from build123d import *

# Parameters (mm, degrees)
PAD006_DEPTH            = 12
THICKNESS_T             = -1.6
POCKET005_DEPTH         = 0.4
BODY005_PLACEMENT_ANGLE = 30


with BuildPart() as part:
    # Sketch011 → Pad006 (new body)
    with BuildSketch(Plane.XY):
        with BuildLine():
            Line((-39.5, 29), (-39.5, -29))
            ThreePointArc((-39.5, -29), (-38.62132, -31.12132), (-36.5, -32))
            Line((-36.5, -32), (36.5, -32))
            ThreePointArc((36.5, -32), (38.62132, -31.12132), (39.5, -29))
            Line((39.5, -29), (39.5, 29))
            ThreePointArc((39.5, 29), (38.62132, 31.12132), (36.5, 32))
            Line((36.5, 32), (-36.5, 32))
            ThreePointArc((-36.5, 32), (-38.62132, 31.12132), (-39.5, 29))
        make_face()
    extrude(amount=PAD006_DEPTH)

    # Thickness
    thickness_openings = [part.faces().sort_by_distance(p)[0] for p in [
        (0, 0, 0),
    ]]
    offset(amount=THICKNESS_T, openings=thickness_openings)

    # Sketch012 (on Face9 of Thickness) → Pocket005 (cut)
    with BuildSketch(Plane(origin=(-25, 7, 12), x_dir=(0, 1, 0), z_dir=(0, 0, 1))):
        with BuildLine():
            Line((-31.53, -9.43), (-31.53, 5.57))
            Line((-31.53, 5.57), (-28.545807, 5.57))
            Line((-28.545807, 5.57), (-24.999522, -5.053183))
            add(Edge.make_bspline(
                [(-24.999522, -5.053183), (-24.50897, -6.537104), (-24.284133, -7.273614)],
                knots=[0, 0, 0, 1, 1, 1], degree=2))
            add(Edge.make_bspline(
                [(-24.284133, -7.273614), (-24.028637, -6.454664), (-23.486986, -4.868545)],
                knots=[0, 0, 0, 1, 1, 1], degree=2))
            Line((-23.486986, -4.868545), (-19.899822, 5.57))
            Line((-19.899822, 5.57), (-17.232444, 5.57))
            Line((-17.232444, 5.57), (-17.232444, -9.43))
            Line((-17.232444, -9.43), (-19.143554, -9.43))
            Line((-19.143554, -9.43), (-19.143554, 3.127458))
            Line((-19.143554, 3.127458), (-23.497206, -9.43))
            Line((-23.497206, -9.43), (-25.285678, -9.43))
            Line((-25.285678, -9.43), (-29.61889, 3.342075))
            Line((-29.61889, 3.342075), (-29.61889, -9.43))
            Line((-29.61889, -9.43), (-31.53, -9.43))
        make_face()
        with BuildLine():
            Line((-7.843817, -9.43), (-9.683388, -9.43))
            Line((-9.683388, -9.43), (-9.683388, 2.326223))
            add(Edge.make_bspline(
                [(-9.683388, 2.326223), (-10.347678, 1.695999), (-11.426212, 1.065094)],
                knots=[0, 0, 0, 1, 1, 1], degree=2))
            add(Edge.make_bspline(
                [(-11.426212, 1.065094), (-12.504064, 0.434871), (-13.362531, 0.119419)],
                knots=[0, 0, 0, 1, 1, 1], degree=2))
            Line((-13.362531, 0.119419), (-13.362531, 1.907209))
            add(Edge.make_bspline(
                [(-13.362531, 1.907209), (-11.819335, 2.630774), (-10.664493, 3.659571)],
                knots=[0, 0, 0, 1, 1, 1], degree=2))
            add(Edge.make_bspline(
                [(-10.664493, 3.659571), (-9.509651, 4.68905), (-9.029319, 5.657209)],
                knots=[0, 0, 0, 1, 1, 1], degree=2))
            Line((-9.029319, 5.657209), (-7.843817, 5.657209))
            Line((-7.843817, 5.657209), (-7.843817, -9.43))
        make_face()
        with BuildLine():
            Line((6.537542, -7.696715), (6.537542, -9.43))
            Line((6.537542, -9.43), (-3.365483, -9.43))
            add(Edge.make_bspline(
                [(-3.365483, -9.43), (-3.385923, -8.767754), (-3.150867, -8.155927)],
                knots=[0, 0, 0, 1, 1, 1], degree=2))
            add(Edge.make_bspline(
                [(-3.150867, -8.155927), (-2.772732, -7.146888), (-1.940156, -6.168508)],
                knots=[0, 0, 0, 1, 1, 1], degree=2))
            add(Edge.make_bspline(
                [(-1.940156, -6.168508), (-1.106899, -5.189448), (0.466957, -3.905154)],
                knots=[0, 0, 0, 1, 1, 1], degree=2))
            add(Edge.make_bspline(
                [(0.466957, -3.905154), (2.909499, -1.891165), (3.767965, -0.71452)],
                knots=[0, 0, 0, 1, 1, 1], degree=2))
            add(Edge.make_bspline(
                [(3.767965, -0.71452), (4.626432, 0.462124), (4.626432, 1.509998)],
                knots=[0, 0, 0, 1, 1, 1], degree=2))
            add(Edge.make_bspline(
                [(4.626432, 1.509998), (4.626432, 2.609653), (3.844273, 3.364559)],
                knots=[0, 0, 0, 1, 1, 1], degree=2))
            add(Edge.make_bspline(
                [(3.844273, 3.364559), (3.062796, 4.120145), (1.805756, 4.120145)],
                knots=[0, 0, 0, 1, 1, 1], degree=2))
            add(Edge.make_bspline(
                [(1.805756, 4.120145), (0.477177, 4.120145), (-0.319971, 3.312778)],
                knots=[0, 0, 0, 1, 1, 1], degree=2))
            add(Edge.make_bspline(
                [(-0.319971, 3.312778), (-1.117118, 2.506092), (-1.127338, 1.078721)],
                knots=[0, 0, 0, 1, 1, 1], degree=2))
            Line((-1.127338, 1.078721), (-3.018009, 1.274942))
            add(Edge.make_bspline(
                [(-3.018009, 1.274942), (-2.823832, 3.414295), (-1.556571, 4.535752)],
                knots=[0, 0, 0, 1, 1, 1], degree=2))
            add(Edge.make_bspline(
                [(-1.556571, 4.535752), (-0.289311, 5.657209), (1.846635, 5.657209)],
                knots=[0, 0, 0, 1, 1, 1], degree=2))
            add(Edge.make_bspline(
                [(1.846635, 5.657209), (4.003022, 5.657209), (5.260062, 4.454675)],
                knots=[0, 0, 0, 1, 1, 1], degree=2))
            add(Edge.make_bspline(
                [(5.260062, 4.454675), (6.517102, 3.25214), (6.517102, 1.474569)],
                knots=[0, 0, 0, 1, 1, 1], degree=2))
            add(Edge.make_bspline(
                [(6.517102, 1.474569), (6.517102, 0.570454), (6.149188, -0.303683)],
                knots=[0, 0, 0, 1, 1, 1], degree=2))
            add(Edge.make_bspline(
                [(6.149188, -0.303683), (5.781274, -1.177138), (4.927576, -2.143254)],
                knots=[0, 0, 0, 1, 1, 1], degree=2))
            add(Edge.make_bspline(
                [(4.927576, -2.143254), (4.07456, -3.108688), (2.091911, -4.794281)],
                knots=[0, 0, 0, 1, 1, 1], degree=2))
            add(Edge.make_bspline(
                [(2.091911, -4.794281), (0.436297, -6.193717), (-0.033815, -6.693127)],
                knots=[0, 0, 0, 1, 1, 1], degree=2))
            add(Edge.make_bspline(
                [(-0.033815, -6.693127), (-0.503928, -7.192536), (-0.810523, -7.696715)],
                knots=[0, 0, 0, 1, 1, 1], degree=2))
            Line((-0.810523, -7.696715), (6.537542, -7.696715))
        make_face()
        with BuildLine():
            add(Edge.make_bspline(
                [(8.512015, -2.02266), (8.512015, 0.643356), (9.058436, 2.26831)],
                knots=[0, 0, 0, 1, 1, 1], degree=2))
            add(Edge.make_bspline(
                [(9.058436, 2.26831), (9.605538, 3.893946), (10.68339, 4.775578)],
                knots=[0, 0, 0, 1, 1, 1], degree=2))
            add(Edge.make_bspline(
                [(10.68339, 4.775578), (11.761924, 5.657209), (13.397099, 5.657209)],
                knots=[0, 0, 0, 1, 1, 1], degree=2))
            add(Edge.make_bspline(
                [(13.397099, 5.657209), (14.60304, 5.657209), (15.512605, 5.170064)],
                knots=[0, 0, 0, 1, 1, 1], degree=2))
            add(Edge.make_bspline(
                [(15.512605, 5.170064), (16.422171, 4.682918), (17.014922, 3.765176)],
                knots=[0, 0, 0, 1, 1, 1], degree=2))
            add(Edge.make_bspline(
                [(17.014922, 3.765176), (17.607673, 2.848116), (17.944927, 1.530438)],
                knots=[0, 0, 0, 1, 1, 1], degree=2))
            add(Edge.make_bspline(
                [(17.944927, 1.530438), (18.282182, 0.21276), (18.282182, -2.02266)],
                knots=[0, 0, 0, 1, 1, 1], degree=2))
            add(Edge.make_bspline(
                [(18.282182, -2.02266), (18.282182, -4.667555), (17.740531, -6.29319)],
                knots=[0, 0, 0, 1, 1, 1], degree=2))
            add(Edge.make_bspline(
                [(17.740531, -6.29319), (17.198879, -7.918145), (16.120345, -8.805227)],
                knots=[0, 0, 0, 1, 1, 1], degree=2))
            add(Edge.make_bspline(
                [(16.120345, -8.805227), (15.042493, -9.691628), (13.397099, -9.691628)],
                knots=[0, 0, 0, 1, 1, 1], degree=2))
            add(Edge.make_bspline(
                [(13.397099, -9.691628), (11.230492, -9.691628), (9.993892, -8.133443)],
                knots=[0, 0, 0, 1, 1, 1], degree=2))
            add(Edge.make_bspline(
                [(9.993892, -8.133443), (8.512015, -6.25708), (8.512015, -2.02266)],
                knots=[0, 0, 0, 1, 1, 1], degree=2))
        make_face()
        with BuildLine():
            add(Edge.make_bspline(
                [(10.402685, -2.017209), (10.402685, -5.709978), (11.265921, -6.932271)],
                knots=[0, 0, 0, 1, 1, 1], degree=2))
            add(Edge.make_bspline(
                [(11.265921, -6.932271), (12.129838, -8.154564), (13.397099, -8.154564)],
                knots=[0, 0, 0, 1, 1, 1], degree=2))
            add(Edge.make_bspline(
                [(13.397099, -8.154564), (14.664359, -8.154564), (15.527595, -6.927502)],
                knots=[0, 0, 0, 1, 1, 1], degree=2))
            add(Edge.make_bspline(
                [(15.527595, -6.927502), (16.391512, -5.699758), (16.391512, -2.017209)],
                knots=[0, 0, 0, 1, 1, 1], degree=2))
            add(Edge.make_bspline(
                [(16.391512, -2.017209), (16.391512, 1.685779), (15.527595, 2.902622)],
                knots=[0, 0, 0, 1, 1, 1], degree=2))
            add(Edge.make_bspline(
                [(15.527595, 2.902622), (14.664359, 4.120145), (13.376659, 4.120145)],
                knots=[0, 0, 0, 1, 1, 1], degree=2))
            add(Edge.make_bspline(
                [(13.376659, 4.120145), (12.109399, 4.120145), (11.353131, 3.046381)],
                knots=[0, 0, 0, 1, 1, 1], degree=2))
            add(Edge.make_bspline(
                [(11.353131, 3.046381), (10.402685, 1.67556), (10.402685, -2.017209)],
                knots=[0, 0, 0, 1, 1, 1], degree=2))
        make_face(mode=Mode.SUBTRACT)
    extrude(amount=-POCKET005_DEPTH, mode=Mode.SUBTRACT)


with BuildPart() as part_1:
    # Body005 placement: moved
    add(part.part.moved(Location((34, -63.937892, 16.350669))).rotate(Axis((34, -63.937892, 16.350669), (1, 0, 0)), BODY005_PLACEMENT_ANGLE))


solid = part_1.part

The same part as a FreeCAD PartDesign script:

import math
import FreeCAD as App
import Part
import Sketcher

V = App.Vector
Q = App.Units.Quantity


def faces_at(feature, points):
    """Names of the faces that lie closest to the given points."""
    faces = feature.Shape.Faces
    near = lambda p: min(range(len(faces)), key=lambda i: faces[i].distToShape(Part.Vertex(*p))[0])
    return sorted({f"Face{near(p) + 1}" for p in points})

doc = App.newDocument("Part")
body = doc.addObject("PartDesign::Body", "Body")

sketch1 = body.newObject("Sketcher::SketchObject", "Sketch")
sketch1.AttachmentSupport = (doc.getObject("XY_Plane"), [""])
sketch1.MapMode = "FlatFace"
sketch1.addGeometry([
    Part.LineSegment(V(-39.5, 29, 0), V(-39.5, -29, 0)),
    Part.ArcOfCircle(Part.Circle(V(-36.5, -29, 0), V(0, 0, 1), 3), math.radians(-180), math.radians(-90)),
    Part.LineSegment(V(-36.5, -32, 0), V(36.5, -32, 0)),
    Part.ArcOfCircle(Part.Circle(V(36.5, -29, 0), V(0, 0, 1), 3), math.radians(-90), math.radians(0)),
    Part.LineSegment(V(39.5, -29, 0), V(39.5, 29, 0)),
    Part.ArcOfCircle(Part.Circle(V(36.5, 29, 0), V(0, 0, 1), 3), math.radians(0), math.radians(90)),
    Part.LineSegment(V(36.5, 32, 0), V(-36.5, 32, 0)),
    Part.ArcOfCircle(Part.Circle(V(-36.5, 29, 0), V(0, 0, 1), 3), math.radians(90), math.radians(180)),
], False)
sketch1.addConstraint([
    Sketcher.Constraint("Tangent", 0, 2, 1, 1),
    Sketcher.Constraint("Tangent", 1, 2, 2, 1),
    Sketcher.Constraint("Tangent", 2, 2, 3, 1),
    Sketcher.Constraint("Tangent", 3, 2, 4, 1),
    Sketcher.Constraint("Tangent", 4, 2, 5, 1),
    Sketcher.Constraint("Tangent", 5, 2, 6, 1),
    Sketcher.Constraint("Tangent", 6, 2, 7, 1),
    Sketcher.Constraint("Tangent", 7, 2, 0, 1),
    Sketcher.Constraint("Vertical", 0),
    Sketcher.Constraint("Horizontal", 2),
    Sketcher.Constraint("Vertical", 4),
    Sketcher.Constraint("Horizontal", 6),
    Sketcher.Constraint("Equal", 1, 3),
    Sketcher.Constraint("Equal", 3, 5),
    Sketcher.Constraint("Equal", 5, 7),
    Sketcher.Constraint("Symmetric", 1, 3, 5, 3, -1, 1),
    Sketcher.Constraint("Radius", 1, Q("3.000001 mm")),
    Sketcher.Constraint("DistanceX", 2, 1, 2, 2, Q("73 mm")),
    Sketcher.Constraint("DistanceY", 0, 2, 0, 1, Q("58 mm")),
])
pad1 = body.newObject("PartDesign::Pad", "Pad")
pad1.Profile = sketch1
pad1.Length = 12
doc.recompute()

thickness = body.newObject("PartDesign::Thickness", "Thickness")
thickness.Base = (pad1, faces_at(pad1, [(0, 0, 0)]))
thickness.Value = 1.6
thickness.Reversed = True
thickness.Join = "Arc"

sketch2 = body.newObject("Sketcher::SketchObject", "Sketch001")
sketch2.AttachmentSupport = (doc.getObject("XY_Plane"), [""])
sketch2.MapMode = "FlatFace"
sketch2.AttachmentOffset = App.Placement(V(0, 0, 12), App.Rotation())
sketch2.addGeometry([
    Part.LineSegment(V(-30.57, -24.53, 0), V(-15.57, -24.53, 0)),
    Part.LineSegment(V(-15.57, -24.53, 0), V(-15.57, -22.61889, 0)),
    Part.LineSegment(V(-15.57, -22.61889, 0), V(-28.342075, -22.61889, 0)),
    Part.LineSegment(V(-28.342075, -22.61889, 0), V(-15.57, -18.285678, 0)),
    Part.LineSegment(V(-15.57, -18.285678, 0), V(-15.57, -16.497206, 0)),
    Part.LineSegment(V(-15.57, -16.497206, 0), V(-28.127458, -12.143554, 0)),
    Part.LineSegment(V(-28.127458, -12.143554, 0), V(-15.57, -12.143554, 0)),
    Part.LineSegment(V(-15.57, -12.143554, 0), V(-15.57, -10.232444, 0)),
    Part.LineSegment(V(-15.57, -10.232444, 0), V(-30.57, -10.232444, 0)),
    Part.LineSegment(V(-30.57, -10.232444, 0), V(-30.57, -12.899822, 0)),
    Part.LineSegment(V(-30.57, -12.899822, 0), V(-20.131455, -16.486986, 0)),
    Part.BSplineCurve([V(-17.726386, -17.284133, 0), V(-18.545336, -17.028637, 0), V(-20.131455, -16.486986, 0)], [3, 3], [0, 1], False, 2, [1, 1, 1], False),
    Part.BSplineCurve([V(-19.946817, -17.999522, 0), V(-18.462896, -17.50897, 0), V(-17.726386, -17.284133, 0)], [3, 3], [0, 1], False, 2, [1, 1, 1], False),
    Part.LineSegment(V(-19.946817, -17.999522, 0), V(-30.57, -21.545807, 0)),
    Part.LineSegment(V(-30.57, -21.545807, 0), V(-30.57, -24.53, 0)),
    Part.LineSegment(V(-15.57, -2.683388, 0), V(-15.57, -0.843817, 0)),
    Part.LineSegment(V(-15.57, -0.843817, 0), V(-30.657209, -0.843817, 0)),
    Part.LineSegment(V(-30.657209, -0.843817, 0), V(-30.657209, -2.029319, 0)),
    Part.BSplineCurve([V(-28.659571, -3.664493, 0), V(-29.68905, -2.509651, 0), V(-30.657209, -2.029319, 0)], [3, 3], [0, 1], False, 2, [1, 1, 1], False),
    Part.BSplineCurve([V(-26.907209, -6.362531, 0), V(-27.630774, -4.819335, 0), V(-28.659571, -3.664493, 0)], [3, 3], [0, 1], False, 2, [1, 1, 1], False),
    Part.LineSegment(V(-26.907209, -6.362531, 0), V(-25.119419, -6.362531, 0)),
    Part.BSplineCurve([V(-26.065094, -4.426212, 0), V(-25.434871, -5.504064, 0), V(-25.119419, -6.362531, 0)], [3, 3], [0, 1], False, 2, [1, 1, 1], False),
    Part.BSplineCurve([V(-27.326223, -2.683388, 0), V(-26.695999, -3.347678, 0), V(-26.065094, -4.426212, 0)], [3, 3], [0, 1], False, 2, [1, 1, 1], False),
    Part.LineSegment(V(-27.326223, -2.683388, 0), V(-15.57, -2.683388, 0)),
    Part.LineSegment(V(-15.57, 13.537542, 0), V(-17.303285, 13.537542, 0)),
    Part.LineSegment(V(-17.303285, 13.537542, 0), V(-17.303285, 6.189477, 0)),
    Part.BSplineCurve([V(-18.306873, 6.966185, 0), V(-17.807464, 6.496072, 0), V(-17.303285, 6.189477, 0)], [3, 3], [0, 1], False, 2, [1, 1, 1], False),
    Part.BSplineCurve([V(-20.205719, 9.091911, 0), V(-18.806283, 7.436297, 0), V(-18.306873, 6.966185, 0)], [3, 3], [0, 1], False, 2, [1, 1, 1], False),
    Part.BSplineCurve([V(-22.856746, 11.927576, 0), V(-21.891312, 11.07456, 0), V(-20.205719, 9.091911, 0)], [3, 3], [0, 1], False, 2, [1, 1, 1], False),
    Part.BSplineCurve([V(-24.696317, 13.149188, 0), V(-23.822862, 12.781274, 0), V(-22.856746, 11.927576, 0)], [3, 3], [0, 1], False, 2, [1, 1, 1], False),
    Part.BSplineCurve([V(-29.454675, 12.260062, 0), V(-28.25214, 13.517102, 0), V(-25.570454, 13.517102, 0), V(-24.696317, 13.149188, 0)], [3, 1, 3], [0, 1, 1.508623847], False, 2, [1, 1, 1, 1], False),
    Part.BSplineCurve([V(-29.535752, 5.443429, 0), V(-30.657209, 6.710689, 0), V(-30.657209, 11.003022, 0), V(-29.454675, 12.260062, 0)], [3, 1, 3], [0, 1, 2.009569998], False, 2, [1, 1, 1, 1], False),
    Part.BSplineCurve([V(-26.274942, 3.981991, 0), V(-28.414295, 4.176168, 0), V(-29.535752, 5.443429, 0)], [3, 3], [0, 1], False, 2, [1, 1, 1], False),
    Part.LineSegment(V(-26.274942, 3.981991, 0), V(-26.078721, 5.872662, 0)),
    Part.BSplineCurve([V(-28.312778, 6.680029, 0), V(-27.506092, 5.882882, 0), V(-26.078721, 5.872662, 0)], [3, 3], [0, 1], False, 2, [1, 1, 1], False),
    Part.BSplineCurve([V(-28.364559, 10.844273, 0), V(-29.120145, 10.062796, 0), V(-29.120145, 7.477177, 0), V(-28.312778, 6.680029, 0)], [3, 1, 3], [0, 1, 2.056910679], False, 2, [1, 1, 1, 1], False),
    Part.BSplineCurve([V(-24.28548, 10.767965, 0), V(-25.462124, 11.626432, 0), V(-27.609653, 11.626432, 0), V(-28.364559, 10.844273, 0)], [3, 1, 3], [0, 1, 2.049415292], False, 2, [1, 1, 1, 1], False),
    Part.BSplineCurve([V(-21.094846, 7.466957, 0), V(-23.108835, 9.909499, 0), V(-24.28548, 10.767965, 0)], [3, 3], [0, 1], False, 2, [1, 1, 1], False),
    Part.BSplineCurve([V(-18.831492, 5.059844, 0), V(-19.810552, 5.893101, 0), V(-21.094846, 7.466957, 0)], [3, 3], [0, 1], False, 2, [1, 1, 1], False),
    Part.BSplineCurve([V(-16.844073, 3.849133, 0), V(-17.853112, 4.227268, 0), V(-18.831492, 5.059844, 0)], [3, 3], [0, 1], False, 2, [1, 1, 1], False),
    Part.BSplineCurve([V(-15.57, 3.634517, 0), V(-16.232246, 3.614077, 0), V(-16.844073, 3.849133, 0)], [3, 3], [0, 1], False, 2, [1, 1, 1], False),
    Part.LineSegment(V(-15.57, 3.634517, 0), V(-15.57, 13.537542, 0)),
    Part.BSplineCurve([V(-27.26831, 16.058436, 0), V(-28.893946, 16.605538, 0), V(-29.775578, 17.68339, 0)], [3, 3], [0, 1], False, 2, [1, 1, 1], False),
    Part.BSplineCurve([V(-16.866557, 16.993892, 0), V(-18.74292, 15.512015, 0), V(-25.643356, 15.512015, 0), V(-27.26831, 16.058436, 0)], [3, 1, 3], [0, 1, 1.629605944], False, 2, [1, 1, 1, 1], False),
    Part.BSplineCurve([V(-16.194773, 23.120345, 0), V(-15.308372, 22.042493, 0), V(-15.308372, 18.230492, 0), V(-16.866557, 16.993892, 0)], [3, 1, 3], [0, 1, 2.316770938], False, 2, [1, 1, 1, 1], False),
    Part.BSplineCurve([V(-18.70681, 24.740531, 0), V(-17.081855, 24.198879, 0), V(-16.194773, 23.120345, 0)], [3, 3], [0, 1], False, 2, [1, 1, 1], False),
    Part.BSplineCurve([V(-26.530438, 24.944927, 0), V(-25.21276, 25.282182, 0), V(-20.332445, 25.282182, 0), V(-18.70681, 24.740531, 0)], [3, 1, 3], [0, 1, 2.183175869], False, 2, [1, 1, 1, 1], False),
    Part.BSplineCurve([V(-28.765176, 24.014922, 0), V(-27.848116, 24.607673, 0), V(-26.530438, 24.944927, 0)], [3, 3], [0, 1], False, 2, [1, 1, 1], False),
    Part.BSplineCurve([V(-30.170064, 22.512605, 0), V(-29.682918, 23.422171, 0), V(-28.765176, 24.014922, 0)], [3, 3], [0, 1], False, 2, [1, 1, 1], False),
    Part.BSplineCurve([V(-29.775578, 17.68339, 0), V(-30.657209, 18.761924, 0), V(-30.657209, 21.60304, 0), V(-30.170064, 22.512605, 0)], [3, 1, 3], [0, 1, 1.737499656], False, 2, [1, 1, 1, 1], False),
    Part.BSplineCurve([V(-28.046381, 18.353131, 0), V(-26.67556, 17.402685, 0), V(-19.290022, 17.402685, 0), V(-18.067729, 18.265921, 0)], [3, 1, 3], [0, 1, 2], False, 2, [1, 1, 1, 1], False),
    Part.BSplineCurve([V(-27.902622, 22.527595, 0), V(-29.120145, 21.664359, 0), V(-29.120145, 19.109399, 0), V(-28.046381, 18.353131, 0)], [3, 1, 3], [0, 1, 1.984126738], False, 2, [1, 1, 1, 1], False),
    Part.BSplineCurve([V(-18.072498, 22.527595, 0), V(-19.300242, 23.391512, 0), V(-26.685779, 23.391512, 0), V(-27.902622, 22.527595, 0)], [3, 1, 3], [0, 1, 2.005550232], False, 2, [1, 1, 1, 1], False),
    Part.BSplineCurve([V(-18.067729, 18.265921, 0), V(-16.845436, 19.129838, 0), V(-16.845436, 21.664359, 0), V(-18.072498, 22.527595, 0)], [3, 1, 3], [0, 1, 1.999999211], False, 2, [1, 1, 1, 1], False),
], False)
sketch2.addConstraint([
    Sketcher.Constraint("Block", 11),
    Sketcher.Constraint("Block", 12),
    Sketcher.Constraint("Block", 18),
    Sketcher.Constraint("Block", 19),
    Sketcher.Constraint("Block", 21),
    Sketcher.Constraint("Block", 22),
    Sketcher.Constraint("Block", 26),
    Sketcher.Constraint("Block", 27),
    Sketcher.Constraint("Block", 28),
    Sketcher.Constraint("Block", 29),
    Sketcher.Constraint("Block", 30),
    Sketcher.Constraint("Block", 31),
    Sketcher.Constraint("Block", 32),
    Sketcher.Constraint("Block", 34),
    Sketcher.Constraint("Block", 35),
    Sketcher.Constraint("Block", 36),
    Sketcher.Constraint("Block", 37),
    Sketcher.Constraint("Block", 38),
    Sketcher.Constraint("Block", 39),
    Sketcher.Constraint("Block", 40),
    Sketcher.Constraint("Block", 42),
    Sketcher.Constraint("Block", 43),
    Sketcher.Constraint("Block", 44),
    Sketcher.Constraint("Block", 45),
    Sketcher.Constraint("Block", 46),
    Sketcher.Constraint("Block", 47),
    Sketcher.Constraint("Block", 48),
    Sketcher.Constraint("Block", 49),
    Sketcher.Constraint("Block", 50),
    Sketcher.Constraint("Block", 51),
    Sketcher.Constraint("Block", 52),
    Sketcher.Constraint("Block", 53),
    Sketcher.Constraint("Coincident", 0, 2, 1, 1),
    Sketcher.Constraint("Coincident", 1, 2, 2, 1),
    Sketcher.Constraint("Coincident", 2, 2, 3, 1),
    Sketcher.Constraint("Coincident", 3, 2, 4, 1),
    Sketcher.Constraint("Coincident", 4, 2, 5, 1),
    Sketcher.Constraint("Coincident", 5, 2, 6, 1),
    Sketcher.Constraint("Coincident", 6, 2, 7, 1),
    Sketcher.Constraint("Coincident", 7, 2, 8, 1),
    Sketcher.Constraint("Coincident", 8, 2, 9, 1),
    Sketcher.Constraint("Coincident", 9, 2, 10, 1),
    Sketcher.Constraint("Coincident", 10, 2, 11, 2),
    Sketcher.Constraint("Coincident", 12, 1, 13, 1),
    Sketcher.Constraint("Coincident", 13, 2, 14, 1),
    Sketcher.Constraint("Coincident", 14, 2, 0, 1),
    Sketcher.Constraint("Coincident", 15, 2, 16, 1),
    Sketcher.Constraint("Coincident", 16, 2, 17, 1),
    Sketcher.Constraint("Coincident", 17, 2, 18, 2),
    Sketcher.Constraint("Coincident", 19, 1, 20, 1),
    Sketcher.Constraint("Coincident", 20, 2, 21, 2),
    Sketcher.Constraint("Coincident", 22, 1, 23, 1),
    Sketcher.Constraint("Coincident", 23, 2, 15, 1),
    Sketcher.Constraint("Coincident", 24, 2, 25, 1),
    Sketcher.Constraint("Coincident", 25, 2, 26, 2),
    Sketcher.Constraint("Coincident", 32, 1, 33, 1),
    Sketcher.Constraint("Coincident", 33, 2, 34, 2),
    Sketcher.Constraint("Coincident", 40, 1, 41, 1),
    Sketcher.Constraint("Coincident", 41, 2, 24, 1),
    Sketcher.Constraint("Horizontal", 0),
    Sketcher.Constraint("Vertical", 1),
    Sketcher.Constraint("Horizontal", 2),
    Sketcher.Constraint("Vertical", 4),
    Sketcher.Constraint("Horizontal", 6),
    Sketcher.Constraint("Vertical", 7),
    Sketcher.Constraint("Horizontal", 8),
    Sketcher.Constraint("Vertical", 9),
    Sketcher.Constraint("Vertical", 14),
    Sketcher.Constraint("Vertical", 15),
    Sketcher.Constraint("Horizontal", 16),
    Sketcher.Constraint("Vertical", 17),
    Sketcher.Constraint("Horizontal", 23),
    Sketcher.Constraint("Horizontal", 24),
    Sketcher.Constraint("Vertical", 25),
    Sketcher.Constraint("Vertical", 41),
    Sketcher.Constraint("Vertical", 1, 2, 3, 2),
    Sketcher.Constraint("Vertical", 4, 2, 6, 2),
    Sketcher.Constraint("Vertical", 9, 2, 13, 2),
    Sketcher.Constraint("Vertical", 7, 2, 15, 2),
    Sketcher.Constraint("Vertical", 23, 2, 41, 2),
    Sketcher.Constraint("Equal", 1, 7),
    Sketcher.Constraint("DistanceX", 0, 1, 0, 2, Q("15 mm")),
    Sketcher.Constraint("DistanceY", 0, 2, -1, 1, Q("24.53 mm")),
    Sketcher.Constraint("DistanceY", 1, 1, 1, 2, Q("1.91111 mm")),
    Sketcher.Constraint("DistanceY", 9, 2, 9, 1, Q("2.667378 mm")),
    Sketcher.Constraint("DistanceY", 15, 1, 15, 2, Q("1.839571 mm")),
    Sketcher.Constraint("Distance", 3, Q("13.487128 mm")),
    Sketcher.Constraint("Distance", 5, Q("13.29075 mm")),
    Sketcher.Constraint("Distance", 13, Q("11.199471 mm")),
    Sketcher.Constraint("DistanceX", 2, 2, 2, 1, Q("12.772075 mm")),
    Sketcher.Constraint("DistanceX", 6, 1, 6, 2, Q("12.557458 mm")),
    Sketcher.Constraint("DistanceY", 4, 1, 4, 2, Q("1.788472 mm")),
    Sketcher.Constraint("DistanceY", 25, 2, 25, 1, Q("7.348065 mm")),
])
pocket1 = body.newObject("PartDesign::Pocket", "Pocket")
pocket1.Profile = sketch2
pocket1.Length = 0.4
body2 = doc.addObject("PartDesign::Body", "Body001")
doc.recompute()

body.Placement = App.Placement(V(34, -63.937892, 16.350669), App.Rotation(V(1, 0, 0), 30))
boolean = body2.newObject("PartDesign::Boolean", "Boolean")
boolean.Type = "Fuse"
boolean.addObjects([body])

doc.recompute()
